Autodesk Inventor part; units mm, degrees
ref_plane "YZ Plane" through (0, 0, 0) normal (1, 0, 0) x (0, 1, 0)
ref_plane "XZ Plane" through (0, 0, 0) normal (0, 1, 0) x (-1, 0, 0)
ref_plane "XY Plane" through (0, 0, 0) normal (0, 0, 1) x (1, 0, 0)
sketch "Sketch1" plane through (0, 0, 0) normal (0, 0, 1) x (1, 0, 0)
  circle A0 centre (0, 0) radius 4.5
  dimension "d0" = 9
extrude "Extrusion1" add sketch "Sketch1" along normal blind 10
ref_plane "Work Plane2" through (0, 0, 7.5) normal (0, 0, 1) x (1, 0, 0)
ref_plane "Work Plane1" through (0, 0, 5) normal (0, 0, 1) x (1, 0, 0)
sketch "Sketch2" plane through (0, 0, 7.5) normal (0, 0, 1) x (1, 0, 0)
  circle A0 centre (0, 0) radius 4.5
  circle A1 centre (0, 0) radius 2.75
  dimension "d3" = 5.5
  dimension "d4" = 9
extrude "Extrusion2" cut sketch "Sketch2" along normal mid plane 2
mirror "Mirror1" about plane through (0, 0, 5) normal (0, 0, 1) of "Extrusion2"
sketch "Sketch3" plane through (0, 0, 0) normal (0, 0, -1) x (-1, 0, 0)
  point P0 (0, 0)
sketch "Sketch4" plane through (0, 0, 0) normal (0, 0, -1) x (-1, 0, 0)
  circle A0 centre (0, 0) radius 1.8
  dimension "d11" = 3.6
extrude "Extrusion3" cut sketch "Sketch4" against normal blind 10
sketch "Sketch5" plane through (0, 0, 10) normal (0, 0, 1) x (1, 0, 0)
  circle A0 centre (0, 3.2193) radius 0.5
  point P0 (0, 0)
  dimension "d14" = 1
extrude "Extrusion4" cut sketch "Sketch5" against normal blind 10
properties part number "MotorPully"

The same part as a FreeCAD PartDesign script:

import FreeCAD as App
import Part
import Sketcher

V = App.Vector

doc = App.newDocument("Part")
body = doc.addObject("PartDesign::Body", "Body")

sketch1 = body.newObject("Sketcher::SketchObject", "Sketch")
sketch1.AttachmentSupport = (doc.getObject("XY_Plane"), [""])
sketch1.MapMode = "FlatFace"
sketch1.addGeometry(Part.Circle(V(0, 0, 0), V(0, 0, 1), 4.5), False)
sketch1.addConstraint(Sketcher.Constraint("Coincident", 0, 3, -1, 1))
sketch1.addConstraint(Sketcher.Constraint("Diameter", 0, 9.0))
pad1 = body.newObject("PartDesign::Pad", "Pad")
pad1.Profile = sketch1
pad1.Length = 10

sketch2 = body.newObject("Sketcher::SketchObject", "Sketch001")
sketch2.AttachmentSupport = (doc.getObject("XY_Plane"), [""])
sketch2.MapMode = "FlatFace"
sketch2.AttachmentOffset = App.Placement(V(0, 0, 7.5), App.Rotation())
sketch2.addGeometry(Part.Circle(V(0, 0, 0), V(0, 0, 1), 4.5), False)
sketch2.addGeometry(Part.Circle(V(0, 0, 0), V(0, 0, 1), 2.75), False)
sketch2.addConstraint(Sketcher.Constraint("Coincident", 0, 3, -1, 1))
sketch2.addConstraint(Sketcher.Constraint("Coincident", 1, 3, -1, 1))
sketch2.addConstraint(Sketcher.Constraint("Diameter", 0, 9.0))
sketch2.addConstraint(Sketcher.Constraint("Diameter", 1, 5.5))
pocket1 = body.newObject("PartDesign::Pocket", "Pocket")
pocket1.Profile = sketch2
pocket1.Length = 2
pocket1.Midplane = True
doc.recompute()

datumplane = body.newObject("PartDesign::Plane", "DatumPlane")
datumplane.AttachmentSupport = (doc.getObject("XY_Plane"), [""])
datumplane.MapMode = "FlatFace"
datumplane.AttachmentOffset = App.Placement(V(0, 0, 5), App.Rotation())
mirrored = body.newObject("PartDesign::Mirrored", "Mirrored")
mirrored.Originals = [pocket1]
mirrored.MirrorPlane = (datumplane, [""])
body.Tip = mirrored

sketch3 = body.newObject("Sketcher::SketchObject", "Sketch002")
sketch3.AttachmentSupport = (doc.getObject("XY_Plane"), [""])
sketch3.MapMode = "FlatFace"
sketch3.addGeometry(Part.Circle(V(0, 0, 0), V(0, 0, 1), 1.8), False)
sketch3.addConstraint(Sketcher.Constraint("Coincident", 0, 3, -1, 1))
sketch3.addConstraint(Sketcher.Constraint("Diameter", 0, 3.6))
pocket2 = body.newObject("PartDesign::Pocket", "Pocket001")
pocket2.Profile = sketch3
pocket2.Length = 10
pocket2.Reversed = True

sketch4 = body.newObject("Sketcher::SketchObject", "Sketch003")
sketch4.AttachmentSupport = (doc.getObject("XY_Plane"), [""])
sketch4.MapMode = "FlatFace"
sketch4.AttachmentOffset = App.Placement(V(0, 0, 10), App.Rotation())
sketch4.addGeometry(Part.Circle(V(0, 3.2193, 0), V(0, 0, 1), 0.5), False)
sketch4.addConstraint(Sketcher.Constraint("PointOnObject", 0, 3, -2))
sketch4.addConstraint(Sketcher.Constraint("Diameter", 0, 1.0))
sketch4.addConstraint(Sketcher.Constraint("DistanceY", -1, 1, 0, 3, 3.2193))
pocket3 = body.newObject("PartDesign::Pocket", "Pocket002")
pocket3.Profile = sketch4
pocket3.Length = 10

doc.recompute()
